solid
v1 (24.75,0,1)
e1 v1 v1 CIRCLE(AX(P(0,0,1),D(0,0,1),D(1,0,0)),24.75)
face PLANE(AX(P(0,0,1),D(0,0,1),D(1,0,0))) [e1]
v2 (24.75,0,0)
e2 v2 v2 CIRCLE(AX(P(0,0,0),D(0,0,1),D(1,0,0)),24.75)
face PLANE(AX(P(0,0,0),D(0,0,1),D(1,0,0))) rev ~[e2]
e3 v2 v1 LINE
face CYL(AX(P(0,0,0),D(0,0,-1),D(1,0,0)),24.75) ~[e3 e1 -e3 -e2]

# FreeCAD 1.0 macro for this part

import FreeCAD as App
import Part
import Sketcher

doc = App.newDocument("Part")
body = doc.addObject("PartDesign::Body", "Body")

sketch1 = body.newObject("Sketcher::SketchObject", "Sketch")
sketch1.AttachmentSupport = (doc.getObject("XY_Plane"), [""])
sketch1.MapMode = "FlatFace"
sketch1.addGeometry(Part.Circle(App.Vector(0, 0, 0), App.Vector(0, 0, 1), 24.75), False)
sketch1.addConstraint(Sketcher.Constraint("Coincident", 0, 3, -1, 1))
sketch1.addConstraint(Sketcher.Constraint("Diameter", 0, 49.5))
pad1 = body.newObject("PartDesign::Pad", "Pad")
pad1.Profile = sketch1
pad1.Length = 1

doc.recompute()
